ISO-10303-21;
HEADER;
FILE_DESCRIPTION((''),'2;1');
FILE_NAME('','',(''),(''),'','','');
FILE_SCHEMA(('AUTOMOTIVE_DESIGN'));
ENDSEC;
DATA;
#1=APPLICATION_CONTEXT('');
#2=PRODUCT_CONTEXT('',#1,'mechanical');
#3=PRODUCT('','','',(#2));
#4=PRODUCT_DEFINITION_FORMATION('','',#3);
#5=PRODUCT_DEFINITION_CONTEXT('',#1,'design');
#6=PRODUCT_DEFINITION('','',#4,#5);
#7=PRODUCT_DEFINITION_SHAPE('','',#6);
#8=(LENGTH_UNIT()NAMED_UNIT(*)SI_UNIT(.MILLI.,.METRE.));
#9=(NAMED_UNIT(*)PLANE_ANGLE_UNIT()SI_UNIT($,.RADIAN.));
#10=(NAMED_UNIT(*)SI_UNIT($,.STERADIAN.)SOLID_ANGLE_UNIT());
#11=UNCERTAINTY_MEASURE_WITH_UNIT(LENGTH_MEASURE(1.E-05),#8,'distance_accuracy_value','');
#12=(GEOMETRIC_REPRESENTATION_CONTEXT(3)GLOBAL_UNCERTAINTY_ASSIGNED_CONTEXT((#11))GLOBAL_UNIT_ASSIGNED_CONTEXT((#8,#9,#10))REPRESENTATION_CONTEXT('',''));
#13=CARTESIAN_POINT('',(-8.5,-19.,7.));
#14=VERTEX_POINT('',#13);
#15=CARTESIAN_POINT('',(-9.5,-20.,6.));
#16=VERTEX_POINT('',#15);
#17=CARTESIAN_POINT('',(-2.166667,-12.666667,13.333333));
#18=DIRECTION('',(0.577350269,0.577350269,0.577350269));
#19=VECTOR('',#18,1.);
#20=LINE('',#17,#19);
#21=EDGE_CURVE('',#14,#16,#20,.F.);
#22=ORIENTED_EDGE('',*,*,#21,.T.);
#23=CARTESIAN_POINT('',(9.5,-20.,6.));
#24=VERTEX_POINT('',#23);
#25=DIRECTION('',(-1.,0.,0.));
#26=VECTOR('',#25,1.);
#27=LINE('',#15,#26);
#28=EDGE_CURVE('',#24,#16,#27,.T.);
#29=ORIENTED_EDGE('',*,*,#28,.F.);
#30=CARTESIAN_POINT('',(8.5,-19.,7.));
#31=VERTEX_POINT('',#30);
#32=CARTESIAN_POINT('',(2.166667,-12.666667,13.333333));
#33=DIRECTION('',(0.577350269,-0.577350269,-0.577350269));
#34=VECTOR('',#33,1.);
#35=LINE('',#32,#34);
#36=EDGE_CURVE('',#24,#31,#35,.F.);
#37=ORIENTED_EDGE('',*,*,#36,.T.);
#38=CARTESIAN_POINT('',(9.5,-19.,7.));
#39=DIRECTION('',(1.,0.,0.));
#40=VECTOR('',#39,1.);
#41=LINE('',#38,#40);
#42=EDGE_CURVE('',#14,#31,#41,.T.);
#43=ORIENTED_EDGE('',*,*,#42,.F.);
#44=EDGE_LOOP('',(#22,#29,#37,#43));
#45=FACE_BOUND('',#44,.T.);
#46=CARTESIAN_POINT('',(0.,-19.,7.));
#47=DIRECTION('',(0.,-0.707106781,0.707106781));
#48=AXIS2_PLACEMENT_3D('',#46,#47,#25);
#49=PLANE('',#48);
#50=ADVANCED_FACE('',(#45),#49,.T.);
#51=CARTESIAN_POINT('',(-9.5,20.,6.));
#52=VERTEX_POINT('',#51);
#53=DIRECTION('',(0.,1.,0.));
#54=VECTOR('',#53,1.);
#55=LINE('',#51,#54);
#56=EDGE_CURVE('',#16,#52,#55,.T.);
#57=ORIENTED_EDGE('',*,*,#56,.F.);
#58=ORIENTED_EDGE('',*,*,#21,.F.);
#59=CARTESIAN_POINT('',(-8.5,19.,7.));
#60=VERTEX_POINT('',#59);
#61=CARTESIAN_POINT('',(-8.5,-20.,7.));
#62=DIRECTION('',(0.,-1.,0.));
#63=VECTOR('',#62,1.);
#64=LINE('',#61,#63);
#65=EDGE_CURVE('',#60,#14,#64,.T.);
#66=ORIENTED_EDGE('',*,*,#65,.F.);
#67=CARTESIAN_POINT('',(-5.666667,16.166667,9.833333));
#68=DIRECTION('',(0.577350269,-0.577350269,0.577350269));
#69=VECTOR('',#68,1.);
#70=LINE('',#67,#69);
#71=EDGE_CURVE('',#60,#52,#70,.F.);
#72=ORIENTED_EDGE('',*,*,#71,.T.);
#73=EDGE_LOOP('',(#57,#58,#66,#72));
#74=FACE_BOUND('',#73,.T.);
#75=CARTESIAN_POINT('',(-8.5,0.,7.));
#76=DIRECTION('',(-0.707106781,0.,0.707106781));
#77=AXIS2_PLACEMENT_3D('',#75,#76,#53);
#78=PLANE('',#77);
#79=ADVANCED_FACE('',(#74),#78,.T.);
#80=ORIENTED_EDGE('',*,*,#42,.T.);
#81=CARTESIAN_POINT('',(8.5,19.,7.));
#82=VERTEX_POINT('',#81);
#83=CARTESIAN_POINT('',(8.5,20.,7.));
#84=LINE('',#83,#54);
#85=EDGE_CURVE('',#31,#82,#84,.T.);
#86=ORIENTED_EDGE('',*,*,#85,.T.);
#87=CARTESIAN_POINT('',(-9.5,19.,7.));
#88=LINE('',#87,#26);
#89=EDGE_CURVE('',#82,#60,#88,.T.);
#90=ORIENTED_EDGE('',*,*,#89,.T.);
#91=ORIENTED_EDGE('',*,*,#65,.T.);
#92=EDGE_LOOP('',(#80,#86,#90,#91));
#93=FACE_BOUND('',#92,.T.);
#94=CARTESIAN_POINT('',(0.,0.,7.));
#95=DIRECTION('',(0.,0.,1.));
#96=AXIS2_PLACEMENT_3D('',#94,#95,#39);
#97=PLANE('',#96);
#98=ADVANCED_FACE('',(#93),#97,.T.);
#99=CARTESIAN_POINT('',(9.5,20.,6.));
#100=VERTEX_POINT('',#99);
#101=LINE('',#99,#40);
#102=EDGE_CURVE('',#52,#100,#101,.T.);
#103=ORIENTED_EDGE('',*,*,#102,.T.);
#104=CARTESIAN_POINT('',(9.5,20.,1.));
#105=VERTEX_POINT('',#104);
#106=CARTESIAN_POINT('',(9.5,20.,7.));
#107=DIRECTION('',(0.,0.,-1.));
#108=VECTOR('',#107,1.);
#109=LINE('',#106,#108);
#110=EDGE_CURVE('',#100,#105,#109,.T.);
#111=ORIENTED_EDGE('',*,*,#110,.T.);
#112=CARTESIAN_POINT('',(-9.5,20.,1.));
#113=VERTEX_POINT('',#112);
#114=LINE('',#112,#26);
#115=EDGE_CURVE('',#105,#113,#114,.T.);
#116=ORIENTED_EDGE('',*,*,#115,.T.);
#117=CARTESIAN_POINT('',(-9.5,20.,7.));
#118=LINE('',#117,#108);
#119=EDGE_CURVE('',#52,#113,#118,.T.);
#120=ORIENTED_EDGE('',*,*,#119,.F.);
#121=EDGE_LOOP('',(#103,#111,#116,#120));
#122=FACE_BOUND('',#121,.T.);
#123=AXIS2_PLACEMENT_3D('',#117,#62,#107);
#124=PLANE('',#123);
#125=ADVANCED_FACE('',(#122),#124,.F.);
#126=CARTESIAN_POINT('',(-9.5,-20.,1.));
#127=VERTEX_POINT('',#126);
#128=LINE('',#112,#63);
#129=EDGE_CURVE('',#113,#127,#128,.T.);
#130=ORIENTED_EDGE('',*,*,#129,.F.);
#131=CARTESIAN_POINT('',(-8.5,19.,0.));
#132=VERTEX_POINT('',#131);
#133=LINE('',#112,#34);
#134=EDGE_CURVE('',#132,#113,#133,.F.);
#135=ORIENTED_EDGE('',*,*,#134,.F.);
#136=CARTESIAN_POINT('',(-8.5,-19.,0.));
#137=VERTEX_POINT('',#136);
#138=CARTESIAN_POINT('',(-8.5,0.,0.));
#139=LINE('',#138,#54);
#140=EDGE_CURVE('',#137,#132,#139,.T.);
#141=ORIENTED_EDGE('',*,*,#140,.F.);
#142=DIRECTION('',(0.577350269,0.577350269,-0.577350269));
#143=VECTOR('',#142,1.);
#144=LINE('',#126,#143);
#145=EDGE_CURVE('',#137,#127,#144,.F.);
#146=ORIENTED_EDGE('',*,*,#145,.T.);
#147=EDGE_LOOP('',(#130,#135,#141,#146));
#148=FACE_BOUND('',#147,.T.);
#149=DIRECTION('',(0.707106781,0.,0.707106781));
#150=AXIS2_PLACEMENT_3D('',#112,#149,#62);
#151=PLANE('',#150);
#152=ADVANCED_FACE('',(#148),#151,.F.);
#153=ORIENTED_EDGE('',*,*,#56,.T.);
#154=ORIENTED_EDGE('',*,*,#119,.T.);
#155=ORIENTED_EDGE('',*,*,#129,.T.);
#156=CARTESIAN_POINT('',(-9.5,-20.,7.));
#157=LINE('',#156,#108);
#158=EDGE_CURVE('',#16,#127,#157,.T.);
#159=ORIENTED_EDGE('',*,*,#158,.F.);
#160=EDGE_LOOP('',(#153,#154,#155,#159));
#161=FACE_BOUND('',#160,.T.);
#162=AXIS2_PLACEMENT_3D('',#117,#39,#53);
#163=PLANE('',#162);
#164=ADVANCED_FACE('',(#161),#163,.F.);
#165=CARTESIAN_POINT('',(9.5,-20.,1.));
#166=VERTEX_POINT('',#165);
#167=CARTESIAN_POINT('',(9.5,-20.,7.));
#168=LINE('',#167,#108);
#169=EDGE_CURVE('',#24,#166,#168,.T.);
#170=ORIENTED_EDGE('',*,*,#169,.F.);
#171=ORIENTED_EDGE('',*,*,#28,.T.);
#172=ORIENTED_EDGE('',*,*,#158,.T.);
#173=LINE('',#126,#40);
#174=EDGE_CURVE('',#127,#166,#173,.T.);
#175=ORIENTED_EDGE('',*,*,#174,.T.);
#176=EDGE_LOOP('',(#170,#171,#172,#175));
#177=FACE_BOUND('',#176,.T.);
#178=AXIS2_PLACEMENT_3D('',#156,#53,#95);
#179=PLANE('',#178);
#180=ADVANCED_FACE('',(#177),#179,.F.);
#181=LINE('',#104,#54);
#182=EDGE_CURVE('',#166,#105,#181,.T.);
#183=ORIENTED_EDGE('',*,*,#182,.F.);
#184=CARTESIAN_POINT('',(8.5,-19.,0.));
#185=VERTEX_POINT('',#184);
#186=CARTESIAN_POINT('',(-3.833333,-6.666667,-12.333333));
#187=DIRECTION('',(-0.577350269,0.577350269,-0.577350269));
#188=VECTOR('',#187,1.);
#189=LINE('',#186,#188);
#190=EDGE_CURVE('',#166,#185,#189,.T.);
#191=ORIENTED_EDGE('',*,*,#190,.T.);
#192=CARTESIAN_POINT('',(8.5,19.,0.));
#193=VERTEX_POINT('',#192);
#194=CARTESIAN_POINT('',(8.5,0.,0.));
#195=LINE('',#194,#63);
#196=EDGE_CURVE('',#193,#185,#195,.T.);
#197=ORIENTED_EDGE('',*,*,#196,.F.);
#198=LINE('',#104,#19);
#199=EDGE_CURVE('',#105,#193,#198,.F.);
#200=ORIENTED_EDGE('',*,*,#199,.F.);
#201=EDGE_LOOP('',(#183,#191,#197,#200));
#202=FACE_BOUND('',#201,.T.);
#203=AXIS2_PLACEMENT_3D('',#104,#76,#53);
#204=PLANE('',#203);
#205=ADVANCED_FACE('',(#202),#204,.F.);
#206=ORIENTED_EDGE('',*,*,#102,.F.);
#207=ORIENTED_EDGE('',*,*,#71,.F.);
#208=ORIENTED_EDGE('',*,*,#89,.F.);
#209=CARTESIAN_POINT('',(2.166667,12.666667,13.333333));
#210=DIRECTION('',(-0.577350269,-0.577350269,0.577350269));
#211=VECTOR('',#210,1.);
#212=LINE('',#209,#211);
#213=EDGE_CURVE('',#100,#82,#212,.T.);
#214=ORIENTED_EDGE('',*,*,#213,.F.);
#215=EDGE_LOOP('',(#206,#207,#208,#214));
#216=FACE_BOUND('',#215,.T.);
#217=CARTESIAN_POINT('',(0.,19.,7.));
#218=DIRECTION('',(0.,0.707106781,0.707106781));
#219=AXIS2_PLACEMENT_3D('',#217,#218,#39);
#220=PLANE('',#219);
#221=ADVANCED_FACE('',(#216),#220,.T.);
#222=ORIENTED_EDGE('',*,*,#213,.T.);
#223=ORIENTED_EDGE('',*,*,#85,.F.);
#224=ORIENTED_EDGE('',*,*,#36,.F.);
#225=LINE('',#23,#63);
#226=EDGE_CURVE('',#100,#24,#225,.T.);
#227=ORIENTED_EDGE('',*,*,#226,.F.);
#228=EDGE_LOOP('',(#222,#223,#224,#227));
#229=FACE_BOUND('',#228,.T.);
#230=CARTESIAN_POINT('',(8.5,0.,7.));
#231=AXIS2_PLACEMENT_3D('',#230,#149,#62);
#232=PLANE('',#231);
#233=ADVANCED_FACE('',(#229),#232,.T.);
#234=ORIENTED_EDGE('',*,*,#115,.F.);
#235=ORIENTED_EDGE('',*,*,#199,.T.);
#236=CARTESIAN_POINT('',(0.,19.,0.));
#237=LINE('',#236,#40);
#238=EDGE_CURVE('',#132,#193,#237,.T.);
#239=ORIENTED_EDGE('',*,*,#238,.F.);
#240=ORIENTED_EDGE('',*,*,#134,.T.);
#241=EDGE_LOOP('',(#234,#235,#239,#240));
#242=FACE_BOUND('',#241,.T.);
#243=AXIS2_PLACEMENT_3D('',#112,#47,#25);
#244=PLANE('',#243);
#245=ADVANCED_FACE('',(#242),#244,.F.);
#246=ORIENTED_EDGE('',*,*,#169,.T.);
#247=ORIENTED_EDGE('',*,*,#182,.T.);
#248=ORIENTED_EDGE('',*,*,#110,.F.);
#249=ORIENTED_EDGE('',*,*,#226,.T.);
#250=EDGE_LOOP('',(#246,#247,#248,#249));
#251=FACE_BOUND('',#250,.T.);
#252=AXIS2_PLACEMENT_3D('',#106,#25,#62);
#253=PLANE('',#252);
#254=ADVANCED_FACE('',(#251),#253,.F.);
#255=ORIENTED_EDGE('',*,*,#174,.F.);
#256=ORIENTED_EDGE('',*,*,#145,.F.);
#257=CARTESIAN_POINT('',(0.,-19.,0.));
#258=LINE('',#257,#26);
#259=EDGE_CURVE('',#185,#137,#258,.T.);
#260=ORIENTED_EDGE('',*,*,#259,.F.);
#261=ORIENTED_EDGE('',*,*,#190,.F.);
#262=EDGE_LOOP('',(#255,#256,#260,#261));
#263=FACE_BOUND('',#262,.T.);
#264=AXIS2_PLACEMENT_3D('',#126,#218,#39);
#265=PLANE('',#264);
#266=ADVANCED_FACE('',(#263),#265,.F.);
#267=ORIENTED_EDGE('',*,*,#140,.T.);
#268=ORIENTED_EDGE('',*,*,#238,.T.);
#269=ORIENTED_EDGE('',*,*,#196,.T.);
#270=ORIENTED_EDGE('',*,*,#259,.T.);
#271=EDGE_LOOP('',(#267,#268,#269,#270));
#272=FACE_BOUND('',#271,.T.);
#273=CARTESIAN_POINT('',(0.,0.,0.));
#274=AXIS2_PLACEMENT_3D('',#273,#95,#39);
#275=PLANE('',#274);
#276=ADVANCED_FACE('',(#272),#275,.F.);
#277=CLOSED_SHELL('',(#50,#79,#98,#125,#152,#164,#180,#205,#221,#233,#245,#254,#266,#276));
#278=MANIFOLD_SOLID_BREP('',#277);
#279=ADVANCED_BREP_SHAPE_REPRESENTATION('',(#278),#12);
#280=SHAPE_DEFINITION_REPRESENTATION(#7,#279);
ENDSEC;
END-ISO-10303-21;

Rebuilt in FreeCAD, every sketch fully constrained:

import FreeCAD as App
import Part
import Sketcher
from FreeCAD import Vector
Q = App.Units.Quantity


def edges_at(feature, points):
    """Names of the edges that pass closest to the given points."""
    edges = feature.Shape.Edges
    near = lambda p: min(range(len(edges)), key=lambda i: edges[i].distToShape(Part.Vertex(*p))[0])
    return sorted({f"Edge{near(p) + 1}" for p in points})


def add_polygon(sketch, points):
    """Adds a closed chain of lines whose ends are joined by coincident constraints."""
    first, n = sketch.GeometryCount, len(points)
    for a, b in zip(points, points[1:] + points[:1]):
        sketch.addGeometry(Part.LineSegment(App.Vector(*a, 0), App.Vector(*b, 0)), False)
    for i in range(n):
        sketch.addConstraint(Sketcher.Constraint("Coincident", first + i, 2, first + (i + 1) % n, 1))

doc = App.newDocument("Part")
body = doc.addObject("PartDesign::Body", "Body")

# Sketch on XY plane
sketch1 = doc.addObject("Sketcher::SketchObject", "Sketch")
body.addObject(sketch1)
sketch1.AttachmentSupport = (doc.XY_Plane, [""])
sketch1.MapMode = "FlatFace"
add_polygon(sketch1, [(-9.5, 20), (-9.5, -20), (9.5, -20), (9.5, 20)])  # lines 0-3
sketch1.addConstraint(Sketcher.Constraint("Vertical", 0))
sketch1.addConstraint(Sketcher.Constraint("Horizontal", 1))
sketch1.addConstraint(Sketcher.Constraint("Vertical", 2))
sketch1.addConstraint(Sketcher.Constraint("Horizontal", 3))
sketch1.addConstraint(Sketcher.Constraint("Symmetric", 0, 2, 2, 2, -1, 1))
sketch1.addConstraint(Sketcher.Constraint("DistanceX", 1, 1, 1, 2, Q("19 mm")))
sketch1.addConstraint(Sketcher.Constraint("DistanceY", 0, 2, 0, 1, Q("40 mm")))
pad1 = doc.addObject("PartDesign::Pad", "Pad")
body.addObject(pad1)
pad1.Profile = sketch1
pad1.Length = 7
doc.recompute()

chamfer = doc.addObject("PartDesign::Chamfer", "Chamfer")
body.addObject(chamfer)
chamfer.Base = (pad1, edges_at(pad1, [
    (-9.5, 0, 7),
    (0, -20, 7),
    (9.5, 0, 7),
    (0, -20, 0),
    (-9.5, 0, 0),
    (0, 20, 0),
    (9.5, 0, 0),
    (0, 20, 7),
]))
chamfer.Size = 1

doc.recompute()
